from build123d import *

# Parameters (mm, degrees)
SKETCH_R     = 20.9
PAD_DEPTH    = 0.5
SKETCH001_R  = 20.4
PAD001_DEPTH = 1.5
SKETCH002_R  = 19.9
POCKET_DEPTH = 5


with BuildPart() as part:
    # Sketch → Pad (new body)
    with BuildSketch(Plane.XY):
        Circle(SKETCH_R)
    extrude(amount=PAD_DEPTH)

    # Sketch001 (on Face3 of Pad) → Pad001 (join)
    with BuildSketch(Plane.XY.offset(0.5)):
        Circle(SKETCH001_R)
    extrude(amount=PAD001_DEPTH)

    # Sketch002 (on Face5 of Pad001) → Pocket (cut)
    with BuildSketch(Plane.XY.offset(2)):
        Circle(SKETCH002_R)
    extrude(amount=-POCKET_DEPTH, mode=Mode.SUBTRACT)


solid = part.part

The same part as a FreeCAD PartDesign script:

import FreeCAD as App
import Part
import Sketcher
from FreeCAD import Vector

doc = App.newDocument("Part")
body = doc.addObject("PartDesign::Body", "Body")

# Sketch on XY plane
sketch1 = doc.addObject("Sketcher::SketchObject", "Sketch")
body.addObject(sketch1)
sketch1.AttachmentSupport = (doc.XY_Plane, [""])
sketch1.MapMode = "FlatFace"
sketch1.addGeometry(Part.Circle(Vector(0, 0, 0), Vector(0, 0, 1), 20.9), False)
sketch1.addConstraint([
    Sketcher.Constraint("Coincident", 0, 3, -1, 1),
    Sketcher.Constraint("Diameter", 0, 41.8),
])
pad1 = doc.addObject("PartDesign::Pad", "Pad")
body.addObject(pad1)
pad1.Profile = sketch1
pad1.Length = 0.5

# Sketch on XY plane
sketch2 = doc.addObject("Sketcher::SketchObject", "Sketch001")
body.addObject(sketch2)
sketch2.AttachmentSupport = (doc.XY_Plane, [""])
sketch2.MapMode = "FlatFace"
sketch2.AttachmentOffset = App.Placement(Vector(0, 0, 0.5), App.Rotation())
sketch2.addGeometry(Part.Circle(Vector(0, 0, 0), Vector(0, 0, 1), 20.4), False)
sketch2.addConstraint([
    Sketcher.Constraint("Coincident", 0, 3, -1, 1),
    Sketcher.Constraint("Diameter", 0, 40.8),
])
pad2 = doc.addObject("PartDesign::Pad", "Pad001")
body.addObject(pad2)
pad2.Profile = sketch2
pad2.Length = 1.5

# Sketch on XY plane
sketch3 = doc.addObject("Sketcher::SketchObject", "Sketch002")
body.addObject(sketch3)
sketch3.AttachmentSupport = (doc.XY_Plane, [""])
sketch3.MapMode = "FlatFace"
sketch3.AttachmentOffset = App.Placement(Vector(0, 0, 2), App.Rotation())
sketch3.addGeometry(Part.Circle(Vector(0, 0, 0), Vector(0, 0, 1), 19.9), False)
sketch3.addConstraint([
    Sketcher.Constraint("Coincident", 0, 3, -1, 1),
    Sketcher.Constraint("Diameter", 0, 39.8),
])
pocket1 = doc.addObject("PartDesign::Pocket", "Pocket")
body.addObject(pocket1)
pocket1.Profile = sketch3
pocket1.Length = 5

doc.recompute()
